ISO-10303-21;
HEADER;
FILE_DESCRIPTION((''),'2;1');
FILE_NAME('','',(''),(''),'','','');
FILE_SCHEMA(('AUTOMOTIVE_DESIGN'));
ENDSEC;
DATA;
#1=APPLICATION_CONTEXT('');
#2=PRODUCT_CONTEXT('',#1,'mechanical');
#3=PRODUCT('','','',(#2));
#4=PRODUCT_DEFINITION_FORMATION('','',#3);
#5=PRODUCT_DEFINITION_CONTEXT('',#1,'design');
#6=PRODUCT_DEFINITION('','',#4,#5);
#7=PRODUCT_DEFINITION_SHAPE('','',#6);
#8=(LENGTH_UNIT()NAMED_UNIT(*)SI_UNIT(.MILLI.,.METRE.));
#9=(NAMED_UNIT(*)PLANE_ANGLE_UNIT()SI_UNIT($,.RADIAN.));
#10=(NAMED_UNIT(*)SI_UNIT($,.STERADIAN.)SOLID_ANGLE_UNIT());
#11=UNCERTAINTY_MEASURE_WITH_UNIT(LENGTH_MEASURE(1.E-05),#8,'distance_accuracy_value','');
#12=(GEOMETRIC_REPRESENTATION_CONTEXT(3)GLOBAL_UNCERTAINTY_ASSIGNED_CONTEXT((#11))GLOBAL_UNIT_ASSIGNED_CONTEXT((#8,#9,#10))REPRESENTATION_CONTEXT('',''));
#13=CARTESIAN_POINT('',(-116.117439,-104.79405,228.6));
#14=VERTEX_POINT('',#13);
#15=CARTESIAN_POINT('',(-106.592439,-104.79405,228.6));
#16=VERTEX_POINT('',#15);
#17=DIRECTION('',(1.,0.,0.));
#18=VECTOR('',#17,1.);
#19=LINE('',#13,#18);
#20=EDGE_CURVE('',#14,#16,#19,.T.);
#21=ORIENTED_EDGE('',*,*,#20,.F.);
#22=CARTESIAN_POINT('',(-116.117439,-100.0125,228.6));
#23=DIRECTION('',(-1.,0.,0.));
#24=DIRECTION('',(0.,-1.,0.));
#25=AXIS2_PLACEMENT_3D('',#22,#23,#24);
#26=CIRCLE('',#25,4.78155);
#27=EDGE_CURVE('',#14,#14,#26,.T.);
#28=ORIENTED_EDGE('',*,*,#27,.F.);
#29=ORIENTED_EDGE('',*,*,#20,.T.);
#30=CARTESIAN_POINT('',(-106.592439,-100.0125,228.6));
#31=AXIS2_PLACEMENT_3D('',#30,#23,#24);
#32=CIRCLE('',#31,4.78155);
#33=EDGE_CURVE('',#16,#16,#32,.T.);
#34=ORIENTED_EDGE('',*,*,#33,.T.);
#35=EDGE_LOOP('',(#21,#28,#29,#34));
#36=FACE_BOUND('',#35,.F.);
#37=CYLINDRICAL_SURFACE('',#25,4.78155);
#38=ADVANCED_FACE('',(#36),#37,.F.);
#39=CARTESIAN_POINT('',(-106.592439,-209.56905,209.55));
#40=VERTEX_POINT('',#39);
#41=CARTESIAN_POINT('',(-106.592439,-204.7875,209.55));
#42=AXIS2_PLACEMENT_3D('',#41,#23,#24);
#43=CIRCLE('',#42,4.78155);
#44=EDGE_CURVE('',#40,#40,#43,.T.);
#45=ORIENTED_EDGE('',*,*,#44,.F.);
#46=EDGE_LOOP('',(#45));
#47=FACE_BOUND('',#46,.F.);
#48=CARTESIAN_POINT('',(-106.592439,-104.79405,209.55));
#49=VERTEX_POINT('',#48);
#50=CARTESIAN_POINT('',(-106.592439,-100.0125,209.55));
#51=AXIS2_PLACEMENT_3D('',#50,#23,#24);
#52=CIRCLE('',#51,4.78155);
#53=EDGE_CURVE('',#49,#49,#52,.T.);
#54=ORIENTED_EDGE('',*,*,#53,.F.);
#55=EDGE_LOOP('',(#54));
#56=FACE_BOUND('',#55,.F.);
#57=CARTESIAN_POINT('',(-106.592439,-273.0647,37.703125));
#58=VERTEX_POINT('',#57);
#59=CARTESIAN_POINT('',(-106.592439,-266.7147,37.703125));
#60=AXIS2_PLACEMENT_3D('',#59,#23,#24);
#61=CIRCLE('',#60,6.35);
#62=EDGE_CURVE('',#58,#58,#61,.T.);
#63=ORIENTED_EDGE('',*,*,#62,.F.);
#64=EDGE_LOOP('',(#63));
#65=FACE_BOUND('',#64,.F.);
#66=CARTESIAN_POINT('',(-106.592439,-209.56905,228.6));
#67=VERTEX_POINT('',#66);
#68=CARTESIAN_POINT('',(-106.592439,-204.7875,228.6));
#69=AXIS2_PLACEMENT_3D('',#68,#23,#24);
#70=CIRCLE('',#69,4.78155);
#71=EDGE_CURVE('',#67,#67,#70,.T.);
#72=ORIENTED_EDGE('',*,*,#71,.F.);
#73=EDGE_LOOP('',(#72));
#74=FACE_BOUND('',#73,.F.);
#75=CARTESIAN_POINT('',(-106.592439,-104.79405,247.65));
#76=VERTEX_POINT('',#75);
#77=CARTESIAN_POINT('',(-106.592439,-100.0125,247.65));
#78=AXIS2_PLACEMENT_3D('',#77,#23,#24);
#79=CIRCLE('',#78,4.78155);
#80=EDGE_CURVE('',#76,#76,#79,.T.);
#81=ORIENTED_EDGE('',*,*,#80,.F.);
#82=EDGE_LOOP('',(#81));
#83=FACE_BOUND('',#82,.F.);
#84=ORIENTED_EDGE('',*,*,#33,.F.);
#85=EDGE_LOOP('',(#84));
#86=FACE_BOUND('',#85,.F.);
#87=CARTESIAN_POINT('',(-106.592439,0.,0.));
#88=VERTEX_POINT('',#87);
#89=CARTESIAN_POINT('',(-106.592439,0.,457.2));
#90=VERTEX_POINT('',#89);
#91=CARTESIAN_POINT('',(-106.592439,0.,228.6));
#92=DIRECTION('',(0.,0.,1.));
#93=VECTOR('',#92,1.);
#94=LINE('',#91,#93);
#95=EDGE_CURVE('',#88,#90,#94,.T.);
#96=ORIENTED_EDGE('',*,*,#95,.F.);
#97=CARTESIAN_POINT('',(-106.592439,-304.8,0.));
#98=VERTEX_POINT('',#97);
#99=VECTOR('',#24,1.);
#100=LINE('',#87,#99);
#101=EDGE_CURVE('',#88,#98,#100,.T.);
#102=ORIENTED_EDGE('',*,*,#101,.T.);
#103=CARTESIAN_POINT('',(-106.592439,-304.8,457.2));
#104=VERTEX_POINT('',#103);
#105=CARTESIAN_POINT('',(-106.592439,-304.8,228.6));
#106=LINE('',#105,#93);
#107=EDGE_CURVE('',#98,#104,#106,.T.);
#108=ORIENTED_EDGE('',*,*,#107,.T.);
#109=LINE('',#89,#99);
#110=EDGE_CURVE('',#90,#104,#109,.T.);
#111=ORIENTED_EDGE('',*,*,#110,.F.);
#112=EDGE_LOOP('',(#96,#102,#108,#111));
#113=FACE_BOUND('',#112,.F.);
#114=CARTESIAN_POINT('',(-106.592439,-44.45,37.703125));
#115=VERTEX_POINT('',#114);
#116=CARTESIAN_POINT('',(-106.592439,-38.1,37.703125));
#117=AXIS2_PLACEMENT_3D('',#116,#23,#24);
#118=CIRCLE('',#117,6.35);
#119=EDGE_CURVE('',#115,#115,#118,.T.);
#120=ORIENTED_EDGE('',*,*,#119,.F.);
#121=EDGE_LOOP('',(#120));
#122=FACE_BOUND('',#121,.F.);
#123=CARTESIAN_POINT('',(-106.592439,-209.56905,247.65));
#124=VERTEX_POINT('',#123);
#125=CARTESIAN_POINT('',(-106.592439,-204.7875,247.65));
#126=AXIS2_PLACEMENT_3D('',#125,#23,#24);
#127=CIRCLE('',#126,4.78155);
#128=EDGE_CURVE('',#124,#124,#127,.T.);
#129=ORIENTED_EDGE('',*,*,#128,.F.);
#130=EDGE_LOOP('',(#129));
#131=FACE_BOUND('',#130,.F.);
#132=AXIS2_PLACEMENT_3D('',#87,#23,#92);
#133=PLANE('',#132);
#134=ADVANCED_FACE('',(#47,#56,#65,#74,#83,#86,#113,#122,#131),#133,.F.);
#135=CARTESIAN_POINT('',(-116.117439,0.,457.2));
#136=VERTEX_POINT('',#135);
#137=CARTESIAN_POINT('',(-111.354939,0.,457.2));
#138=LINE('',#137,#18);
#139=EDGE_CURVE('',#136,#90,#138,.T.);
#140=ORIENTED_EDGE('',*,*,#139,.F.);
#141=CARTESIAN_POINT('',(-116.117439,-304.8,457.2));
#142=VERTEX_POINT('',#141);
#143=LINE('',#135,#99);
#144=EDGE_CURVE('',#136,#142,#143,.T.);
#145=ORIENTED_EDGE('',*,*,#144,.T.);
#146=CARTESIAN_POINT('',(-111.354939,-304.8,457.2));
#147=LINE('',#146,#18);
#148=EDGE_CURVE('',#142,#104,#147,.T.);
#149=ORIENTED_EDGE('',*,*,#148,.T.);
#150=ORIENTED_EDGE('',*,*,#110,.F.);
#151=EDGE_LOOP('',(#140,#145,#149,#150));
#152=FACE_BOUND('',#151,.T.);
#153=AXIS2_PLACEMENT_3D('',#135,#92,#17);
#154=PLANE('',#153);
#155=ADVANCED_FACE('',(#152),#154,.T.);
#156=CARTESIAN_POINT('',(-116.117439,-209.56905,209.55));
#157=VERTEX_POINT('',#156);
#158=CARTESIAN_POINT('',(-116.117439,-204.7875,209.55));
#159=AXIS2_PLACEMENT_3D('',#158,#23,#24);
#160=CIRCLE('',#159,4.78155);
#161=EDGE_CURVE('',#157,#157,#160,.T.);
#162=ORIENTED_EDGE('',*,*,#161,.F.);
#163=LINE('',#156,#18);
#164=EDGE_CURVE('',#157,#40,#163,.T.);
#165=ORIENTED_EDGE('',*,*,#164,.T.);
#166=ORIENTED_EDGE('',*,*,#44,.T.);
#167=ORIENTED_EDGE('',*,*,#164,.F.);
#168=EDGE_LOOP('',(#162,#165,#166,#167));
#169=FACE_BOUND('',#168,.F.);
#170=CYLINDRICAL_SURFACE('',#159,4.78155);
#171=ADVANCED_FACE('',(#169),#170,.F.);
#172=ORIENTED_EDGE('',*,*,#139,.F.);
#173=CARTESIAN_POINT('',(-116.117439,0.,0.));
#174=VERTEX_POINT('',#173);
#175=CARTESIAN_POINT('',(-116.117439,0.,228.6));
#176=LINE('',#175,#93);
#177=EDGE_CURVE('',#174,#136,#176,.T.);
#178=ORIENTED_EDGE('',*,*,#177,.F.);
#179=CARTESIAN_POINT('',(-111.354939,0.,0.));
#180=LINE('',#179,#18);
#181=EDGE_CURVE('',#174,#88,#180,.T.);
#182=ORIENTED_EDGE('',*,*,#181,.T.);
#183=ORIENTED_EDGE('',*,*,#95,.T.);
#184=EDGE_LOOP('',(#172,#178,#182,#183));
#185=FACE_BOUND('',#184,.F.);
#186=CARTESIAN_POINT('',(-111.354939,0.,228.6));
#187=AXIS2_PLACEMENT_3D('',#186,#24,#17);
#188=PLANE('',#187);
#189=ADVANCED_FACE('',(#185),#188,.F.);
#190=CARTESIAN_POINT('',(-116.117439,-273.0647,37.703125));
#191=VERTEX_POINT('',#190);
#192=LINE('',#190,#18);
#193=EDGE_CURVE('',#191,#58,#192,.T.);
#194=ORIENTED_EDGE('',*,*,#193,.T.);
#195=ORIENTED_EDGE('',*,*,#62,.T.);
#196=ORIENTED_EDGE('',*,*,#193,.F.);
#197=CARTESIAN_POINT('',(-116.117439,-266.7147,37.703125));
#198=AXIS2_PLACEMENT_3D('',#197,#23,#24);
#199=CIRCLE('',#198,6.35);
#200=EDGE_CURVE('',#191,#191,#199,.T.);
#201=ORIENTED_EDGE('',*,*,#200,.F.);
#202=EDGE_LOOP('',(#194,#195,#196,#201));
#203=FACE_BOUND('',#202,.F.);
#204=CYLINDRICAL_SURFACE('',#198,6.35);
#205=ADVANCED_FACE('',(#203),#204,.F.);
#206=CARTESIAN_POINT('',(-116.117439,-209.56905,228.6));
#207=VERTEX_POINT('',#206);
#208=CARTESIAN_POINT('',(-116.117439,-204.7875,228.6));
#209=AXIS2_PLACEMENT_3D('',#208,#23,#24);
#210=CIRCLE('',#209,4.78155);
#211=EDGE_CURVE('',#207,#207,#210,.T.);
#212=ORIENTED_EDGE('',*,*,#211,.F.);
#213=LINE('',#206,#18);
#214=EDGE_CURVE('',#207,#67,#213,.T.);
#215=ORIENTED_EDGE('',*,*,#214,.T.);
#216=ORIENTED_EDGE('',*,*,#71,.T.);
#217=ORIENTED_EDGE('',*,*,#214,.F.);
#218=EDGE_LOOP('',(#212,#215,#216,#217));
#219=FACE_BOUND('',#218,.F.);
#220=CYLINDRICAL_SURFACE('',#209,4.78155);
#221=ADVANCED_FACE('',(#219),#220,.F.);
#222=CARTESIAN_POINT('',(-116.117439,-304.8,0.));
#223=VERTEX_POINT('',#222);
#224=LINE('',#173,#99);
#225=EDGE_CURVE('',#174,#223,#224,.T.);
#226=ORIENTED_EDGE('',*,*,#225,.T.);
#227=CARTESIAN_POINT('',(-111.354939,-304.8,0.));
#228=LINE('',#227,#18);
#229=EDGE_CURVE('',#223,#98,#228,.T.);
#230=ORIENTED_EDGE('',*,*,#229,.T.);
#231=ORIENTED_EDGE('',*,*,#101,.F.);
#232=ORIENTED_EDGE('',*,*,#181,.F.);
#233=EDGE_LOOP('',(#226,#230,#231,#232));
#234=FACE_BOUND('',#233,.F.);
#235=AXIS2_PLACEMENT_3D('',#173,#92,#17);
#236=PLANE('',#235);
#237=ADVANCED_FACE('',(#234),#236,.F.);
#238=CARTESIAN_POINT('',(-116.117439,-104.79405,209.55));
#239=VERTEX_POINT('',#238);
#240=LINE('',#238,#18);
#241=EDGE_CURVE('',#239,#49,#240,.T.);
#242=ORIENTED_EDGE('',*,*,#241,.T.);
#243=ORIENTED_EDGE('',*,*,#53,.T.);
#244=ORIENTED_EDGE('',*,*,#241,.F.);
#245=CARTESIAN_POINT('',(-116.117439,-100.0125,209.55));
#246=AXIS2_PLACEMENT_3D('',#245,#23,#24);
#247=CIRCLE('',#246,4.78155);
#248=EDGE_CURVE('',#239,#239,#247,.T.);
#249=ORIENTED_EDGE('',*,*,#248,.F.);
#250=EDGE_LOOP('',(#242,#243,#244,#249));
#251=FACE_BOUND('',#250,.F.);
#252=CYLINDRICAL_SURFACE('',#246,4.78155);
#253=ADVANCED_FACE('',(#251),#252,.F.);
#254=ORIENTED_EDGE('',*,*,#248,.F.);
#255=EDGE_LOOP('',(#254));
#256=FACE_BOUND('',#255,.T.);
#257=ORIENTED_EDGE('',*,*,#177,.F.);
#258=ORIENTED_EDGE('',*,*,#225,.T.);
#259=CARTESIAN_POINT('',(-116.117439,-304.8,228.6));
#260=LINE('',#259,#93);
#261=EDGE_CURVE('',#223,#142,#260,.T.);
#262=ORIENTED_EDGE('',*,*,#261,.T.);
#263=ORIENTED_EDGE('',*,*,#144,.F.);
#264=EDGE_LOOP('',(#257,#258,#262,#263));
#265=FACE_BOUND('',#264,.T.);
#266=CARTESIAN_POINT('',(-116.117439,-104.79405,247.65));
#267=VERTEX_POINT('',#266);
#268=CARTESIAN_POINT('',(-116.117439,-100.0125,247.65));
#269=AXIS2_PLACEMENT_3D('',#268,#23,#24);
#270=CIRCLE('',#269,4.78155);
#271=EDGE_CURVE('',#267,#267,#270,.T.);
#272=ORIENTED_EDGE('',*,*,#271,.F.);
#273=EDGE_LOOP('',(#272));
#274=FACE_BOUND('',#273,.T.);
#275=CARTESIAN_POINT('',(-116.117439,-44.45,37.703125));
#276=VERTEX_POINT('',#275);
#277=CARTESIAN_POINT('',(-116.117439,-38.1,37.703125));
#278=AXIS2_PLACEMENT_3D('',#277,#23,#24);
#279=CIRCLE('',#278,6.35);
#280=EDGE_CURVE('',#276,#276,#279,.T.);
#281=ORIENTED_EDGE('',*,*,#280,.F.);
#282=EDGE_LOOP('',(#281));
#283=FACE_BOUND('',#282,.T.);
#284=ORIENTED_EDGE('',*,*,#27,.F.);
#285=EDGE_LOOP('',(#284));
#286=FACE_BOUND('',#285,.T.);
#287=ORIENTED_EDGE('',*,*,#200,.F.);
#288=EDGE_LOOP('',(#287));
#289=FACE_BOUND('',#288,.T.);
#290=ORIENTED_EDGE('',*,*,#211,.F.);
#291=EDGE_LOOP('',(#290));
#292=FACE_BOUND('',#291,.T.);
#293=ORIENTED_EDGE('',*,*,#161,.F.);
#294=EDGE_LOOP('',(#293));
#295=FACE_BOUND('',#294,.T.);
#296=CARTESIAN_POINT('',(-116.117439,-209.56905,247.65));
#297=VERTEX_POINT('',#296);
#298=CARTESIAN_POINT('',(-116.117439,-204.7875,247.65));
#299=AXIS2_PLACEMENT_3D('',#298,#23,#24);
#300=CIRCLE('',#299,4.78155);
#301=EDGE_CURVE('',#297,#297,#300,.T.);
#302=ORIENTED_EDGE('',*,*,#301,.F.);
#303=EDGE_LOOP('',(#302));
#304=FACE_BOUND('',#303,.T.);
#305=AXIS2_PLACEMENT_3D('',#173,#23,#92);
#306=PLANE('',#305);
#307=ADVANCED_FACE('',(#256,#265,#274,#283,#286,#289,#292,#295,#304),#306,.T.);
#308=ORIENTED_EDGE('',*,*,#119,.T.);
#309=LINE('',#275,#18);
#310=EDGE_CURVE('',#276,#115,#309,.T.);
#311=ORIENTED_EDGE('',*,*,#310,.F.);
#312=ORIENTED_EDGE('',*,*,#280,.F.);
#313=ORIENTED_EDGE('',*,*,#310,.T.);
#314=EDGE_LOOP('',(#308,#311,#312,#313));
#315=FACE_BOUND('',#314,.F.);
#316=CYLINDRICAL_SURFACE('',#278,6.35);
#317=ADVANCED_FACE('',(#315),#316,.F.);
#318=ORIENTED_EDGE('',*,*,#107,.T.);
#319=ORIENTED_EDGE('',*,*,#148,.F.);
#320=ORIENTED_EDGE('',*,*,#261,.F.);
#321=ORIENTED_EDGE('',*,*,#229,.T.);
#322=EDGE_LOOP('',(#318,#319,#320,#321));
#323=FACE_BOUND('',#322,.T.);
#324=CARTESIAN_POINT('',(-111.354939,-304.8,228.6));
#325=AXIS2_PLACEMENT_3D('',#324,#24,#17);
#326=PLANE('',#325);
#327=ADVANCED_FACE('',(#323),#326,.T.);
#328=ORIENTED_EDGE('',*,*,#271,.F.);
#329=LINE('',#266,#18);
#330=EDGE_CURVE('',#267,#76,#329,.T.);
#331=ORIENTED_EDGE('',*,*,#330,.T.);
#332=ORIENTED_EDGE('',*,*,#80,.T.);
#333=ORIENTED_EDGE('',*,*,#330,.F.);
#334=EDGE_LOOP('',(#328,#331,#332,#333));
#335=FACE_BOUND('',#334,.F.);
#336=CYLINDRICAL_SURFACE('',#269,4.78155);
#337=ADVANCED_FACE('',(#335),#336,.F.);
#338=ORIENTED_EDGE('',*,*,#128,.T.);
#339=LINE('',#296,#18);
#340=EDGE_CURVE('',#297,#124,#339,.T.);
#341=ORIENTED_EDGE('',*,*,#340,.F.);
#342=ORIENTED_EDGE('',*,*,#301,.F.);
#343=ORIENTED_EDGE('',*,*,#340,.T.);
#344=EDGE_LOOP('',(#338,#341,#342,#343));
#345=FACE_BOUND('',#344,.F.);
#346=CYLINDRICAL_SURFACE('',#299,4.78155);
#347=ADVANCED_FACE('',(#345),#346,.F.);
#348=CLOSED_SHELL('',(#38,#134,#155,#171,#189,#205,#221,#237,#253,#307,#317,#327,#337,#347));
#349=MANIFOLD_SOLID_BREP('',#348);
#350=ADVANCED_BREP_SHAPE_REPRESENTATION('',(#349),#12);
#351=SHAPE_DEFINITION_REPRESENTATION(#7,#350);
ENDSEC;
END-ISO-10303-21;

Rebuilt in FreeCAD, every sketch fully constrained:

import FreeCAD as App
import Part
import Sketcher

V = App.Vector
Q = App.Units.Quantity


def add_polygon(sketch, points):
    """Adds a closed chain of lines whose ends are joined by coincident constraints."""
    first, n = sketch.GeometryCount, len(points)
    for a, b in zip(points, points[1:] + points[:1]):
        sketch.addGeometry(Part.LineSegment(App.Vector(*a, 0), App.Vector(*b, 0)), False)
    for i in range(n):
        sketch.addConstraint(Sketcher.Constraint("Coincident", first + i, 2, first + (i + 1) % n, 1))

doc = App.newDocument("Part")
body = doc.addObject("PartDesign::Body", "Body")

sketch1 = body.newObject("Sketcher::SketchObject", "Sketch")
sketch1.AttachmentSupport = (doc.getObject("XZ_Plane"), [""])
sketch1.MapMode = "FlatFace"
add_polygon(sketch1, [(-116, 457), (-116, 0), (-107, 0), (-107, 457)])
sketch1.addConstraint([
    Sketcher.Constraint("Vertical", 0),
    Sketcher.Constraint("Horizontal", 1),
    Sketcher.Constraint("Vertical", 2),
    Sketcher.Constraint("Horizontal", 3),
    Sketcher.Constraint("PointOnObject", 0, 2, -1),
    Sketcher.Constraint("DistanceY", 0, 2, 0, 1, Q("18 in")),
    Sketcher.Constraint("DistanceX", 1, 1, 1, 2, Q("0.375 in")),
    Sketcher.Constraint("DistanceX", 0, 2, -1, 1, 116.117439),
])
pad1 = body.newObject("PartDesign::Pad", "Pad")
pad1.Profile = sketch1
pad1.Length = Q("12 in")

sketch2 = body.newObject("Sketcher::SketchObject", "Sketch001")
sketch2.AttachmentSupport = (doc.getObject("YZ_Plane"), [""])
sketch2.MapMode = "FlatFace"
sketch2.AttachmentOffset = App.Placement(V(0, 0, -116.117439), App.Rotation())
sketch2.addGeometry([
    Part.Circle(V(-38, 38, 0), V(0, 0, 1), 6),
    Part.Circle(V(-267, 38, 0), V(0, 0, 1), 6),
], False)
sketch2.addConstraint([
    Sketcher.Constraint("Equal", 0, 1),
    Sketcher.Constraint("Horizontal", 0, 3, 1, 3),
    Sketcher.Constraint("Diameter", 0, Q("0.5 in")),
    Sketcher.Constraint("DistanceX", 0, 3, -1, 1, Q("1.5 in")),
    Sketcher.Constraint("DistanceY", -1, 1, 0, 3, Q("1.484375 in")),
    Sketcher.Constraint("DistanceX", 1, 3, -1, 1, 266.7147),
])
pocket1 = body.newObject("PartDesign::Pocket", "Pocket")
pocket1.Profile = sketch2
pocket1.Type = "ThroughAll"
pocket1.Reversed = True

sketch3 = body.newObject("Sketcher::SketchObject", "Sketch002")
sketch3.AttachmentSupport = (doc.getObject("YZ_Plane"), [""])
sketch3.MapMode = "FlatFace"
sketch3.AttachmentOffset = App.Placement(V(0, 0, -116.117439), App.Rotation())
sketch3.addGeometry([
    Part.Circle(V(-100, 247.7, 0), V(0, 0, 1), 4.8),
    Part.Circle(V(-204.8, 247.7, 0), V(0, 0, 1), 4.8),
    Part.Circle(V(-100, 228.6, 0), V(0, 0, 1), 4.8),
    Part.Circle(V(-204.8, 228.6, 0), V(0, 0, 1), 4.8),
    Part.Circle(V(-100, 209.6, 0), V(0, 0, 1), 4.8),
    Part.Circle(V(-204.8, 209.6, 0), V(0, 0, 1), 4.8),
], False)
sketch3.addConstraint([
    Sketcher.Constraint("Equal", 0, 1),
    Sketcher.Constraint("Equal", 1, 2),
    Sketcher.Constraint("Equal", 2, 3),
    Sketcher.Constraint("Equal", 3, 4),
    Sketcher.Constraint("Equal", 4, 5),
    Sketcher.Constraint("Horizontal", 0, 3, 1, 3),
    Sketcher.Constraint("Horizontal", 2, 3, 3, 3),
    Sketcher.Constraint("Horizontal", 4, 3, 5, 3),
    Sketcher.Constraint("Vertical", 0, 3, 2, 3),
    Sketcher.Constraint("Vertical", 1, 3, 3, 3),
    Sketcher.Constraint("Vertical", 2, 3, 4, 3),
    Sketcher.Constraint("Vertical", 3, 3, 5, 3),
    Sketcher.Constraint("DistanceY", -1, 1, 2, 3, Q("9 in")),
    Sketcher.Constraint("Diameter", 0, Q("0.3765 in")),
    Sketcher.Constraint("DistanceY", 4, 3, 0, 3, Q("1.5 in")),
    Sketcher.Constraint("DistanceY", -1, 1, 0, 3, Q("9.75 in")),
    Sketcher.Constraint("DistanceX", 0, 3, -1, 1, Q("3.9375 in")),
    Sketcher.Constraint("DistanceX", 1, 3, -1, 1, Q("8.0625 in")),
])
pocket2 = body.newObject("PartDesign::Pocket", "Pocket001")
pocket2.Profile = sketch3
pocket2.Type = "ThroughAll"
pocket2.Reversed = True

doc.recompute()
